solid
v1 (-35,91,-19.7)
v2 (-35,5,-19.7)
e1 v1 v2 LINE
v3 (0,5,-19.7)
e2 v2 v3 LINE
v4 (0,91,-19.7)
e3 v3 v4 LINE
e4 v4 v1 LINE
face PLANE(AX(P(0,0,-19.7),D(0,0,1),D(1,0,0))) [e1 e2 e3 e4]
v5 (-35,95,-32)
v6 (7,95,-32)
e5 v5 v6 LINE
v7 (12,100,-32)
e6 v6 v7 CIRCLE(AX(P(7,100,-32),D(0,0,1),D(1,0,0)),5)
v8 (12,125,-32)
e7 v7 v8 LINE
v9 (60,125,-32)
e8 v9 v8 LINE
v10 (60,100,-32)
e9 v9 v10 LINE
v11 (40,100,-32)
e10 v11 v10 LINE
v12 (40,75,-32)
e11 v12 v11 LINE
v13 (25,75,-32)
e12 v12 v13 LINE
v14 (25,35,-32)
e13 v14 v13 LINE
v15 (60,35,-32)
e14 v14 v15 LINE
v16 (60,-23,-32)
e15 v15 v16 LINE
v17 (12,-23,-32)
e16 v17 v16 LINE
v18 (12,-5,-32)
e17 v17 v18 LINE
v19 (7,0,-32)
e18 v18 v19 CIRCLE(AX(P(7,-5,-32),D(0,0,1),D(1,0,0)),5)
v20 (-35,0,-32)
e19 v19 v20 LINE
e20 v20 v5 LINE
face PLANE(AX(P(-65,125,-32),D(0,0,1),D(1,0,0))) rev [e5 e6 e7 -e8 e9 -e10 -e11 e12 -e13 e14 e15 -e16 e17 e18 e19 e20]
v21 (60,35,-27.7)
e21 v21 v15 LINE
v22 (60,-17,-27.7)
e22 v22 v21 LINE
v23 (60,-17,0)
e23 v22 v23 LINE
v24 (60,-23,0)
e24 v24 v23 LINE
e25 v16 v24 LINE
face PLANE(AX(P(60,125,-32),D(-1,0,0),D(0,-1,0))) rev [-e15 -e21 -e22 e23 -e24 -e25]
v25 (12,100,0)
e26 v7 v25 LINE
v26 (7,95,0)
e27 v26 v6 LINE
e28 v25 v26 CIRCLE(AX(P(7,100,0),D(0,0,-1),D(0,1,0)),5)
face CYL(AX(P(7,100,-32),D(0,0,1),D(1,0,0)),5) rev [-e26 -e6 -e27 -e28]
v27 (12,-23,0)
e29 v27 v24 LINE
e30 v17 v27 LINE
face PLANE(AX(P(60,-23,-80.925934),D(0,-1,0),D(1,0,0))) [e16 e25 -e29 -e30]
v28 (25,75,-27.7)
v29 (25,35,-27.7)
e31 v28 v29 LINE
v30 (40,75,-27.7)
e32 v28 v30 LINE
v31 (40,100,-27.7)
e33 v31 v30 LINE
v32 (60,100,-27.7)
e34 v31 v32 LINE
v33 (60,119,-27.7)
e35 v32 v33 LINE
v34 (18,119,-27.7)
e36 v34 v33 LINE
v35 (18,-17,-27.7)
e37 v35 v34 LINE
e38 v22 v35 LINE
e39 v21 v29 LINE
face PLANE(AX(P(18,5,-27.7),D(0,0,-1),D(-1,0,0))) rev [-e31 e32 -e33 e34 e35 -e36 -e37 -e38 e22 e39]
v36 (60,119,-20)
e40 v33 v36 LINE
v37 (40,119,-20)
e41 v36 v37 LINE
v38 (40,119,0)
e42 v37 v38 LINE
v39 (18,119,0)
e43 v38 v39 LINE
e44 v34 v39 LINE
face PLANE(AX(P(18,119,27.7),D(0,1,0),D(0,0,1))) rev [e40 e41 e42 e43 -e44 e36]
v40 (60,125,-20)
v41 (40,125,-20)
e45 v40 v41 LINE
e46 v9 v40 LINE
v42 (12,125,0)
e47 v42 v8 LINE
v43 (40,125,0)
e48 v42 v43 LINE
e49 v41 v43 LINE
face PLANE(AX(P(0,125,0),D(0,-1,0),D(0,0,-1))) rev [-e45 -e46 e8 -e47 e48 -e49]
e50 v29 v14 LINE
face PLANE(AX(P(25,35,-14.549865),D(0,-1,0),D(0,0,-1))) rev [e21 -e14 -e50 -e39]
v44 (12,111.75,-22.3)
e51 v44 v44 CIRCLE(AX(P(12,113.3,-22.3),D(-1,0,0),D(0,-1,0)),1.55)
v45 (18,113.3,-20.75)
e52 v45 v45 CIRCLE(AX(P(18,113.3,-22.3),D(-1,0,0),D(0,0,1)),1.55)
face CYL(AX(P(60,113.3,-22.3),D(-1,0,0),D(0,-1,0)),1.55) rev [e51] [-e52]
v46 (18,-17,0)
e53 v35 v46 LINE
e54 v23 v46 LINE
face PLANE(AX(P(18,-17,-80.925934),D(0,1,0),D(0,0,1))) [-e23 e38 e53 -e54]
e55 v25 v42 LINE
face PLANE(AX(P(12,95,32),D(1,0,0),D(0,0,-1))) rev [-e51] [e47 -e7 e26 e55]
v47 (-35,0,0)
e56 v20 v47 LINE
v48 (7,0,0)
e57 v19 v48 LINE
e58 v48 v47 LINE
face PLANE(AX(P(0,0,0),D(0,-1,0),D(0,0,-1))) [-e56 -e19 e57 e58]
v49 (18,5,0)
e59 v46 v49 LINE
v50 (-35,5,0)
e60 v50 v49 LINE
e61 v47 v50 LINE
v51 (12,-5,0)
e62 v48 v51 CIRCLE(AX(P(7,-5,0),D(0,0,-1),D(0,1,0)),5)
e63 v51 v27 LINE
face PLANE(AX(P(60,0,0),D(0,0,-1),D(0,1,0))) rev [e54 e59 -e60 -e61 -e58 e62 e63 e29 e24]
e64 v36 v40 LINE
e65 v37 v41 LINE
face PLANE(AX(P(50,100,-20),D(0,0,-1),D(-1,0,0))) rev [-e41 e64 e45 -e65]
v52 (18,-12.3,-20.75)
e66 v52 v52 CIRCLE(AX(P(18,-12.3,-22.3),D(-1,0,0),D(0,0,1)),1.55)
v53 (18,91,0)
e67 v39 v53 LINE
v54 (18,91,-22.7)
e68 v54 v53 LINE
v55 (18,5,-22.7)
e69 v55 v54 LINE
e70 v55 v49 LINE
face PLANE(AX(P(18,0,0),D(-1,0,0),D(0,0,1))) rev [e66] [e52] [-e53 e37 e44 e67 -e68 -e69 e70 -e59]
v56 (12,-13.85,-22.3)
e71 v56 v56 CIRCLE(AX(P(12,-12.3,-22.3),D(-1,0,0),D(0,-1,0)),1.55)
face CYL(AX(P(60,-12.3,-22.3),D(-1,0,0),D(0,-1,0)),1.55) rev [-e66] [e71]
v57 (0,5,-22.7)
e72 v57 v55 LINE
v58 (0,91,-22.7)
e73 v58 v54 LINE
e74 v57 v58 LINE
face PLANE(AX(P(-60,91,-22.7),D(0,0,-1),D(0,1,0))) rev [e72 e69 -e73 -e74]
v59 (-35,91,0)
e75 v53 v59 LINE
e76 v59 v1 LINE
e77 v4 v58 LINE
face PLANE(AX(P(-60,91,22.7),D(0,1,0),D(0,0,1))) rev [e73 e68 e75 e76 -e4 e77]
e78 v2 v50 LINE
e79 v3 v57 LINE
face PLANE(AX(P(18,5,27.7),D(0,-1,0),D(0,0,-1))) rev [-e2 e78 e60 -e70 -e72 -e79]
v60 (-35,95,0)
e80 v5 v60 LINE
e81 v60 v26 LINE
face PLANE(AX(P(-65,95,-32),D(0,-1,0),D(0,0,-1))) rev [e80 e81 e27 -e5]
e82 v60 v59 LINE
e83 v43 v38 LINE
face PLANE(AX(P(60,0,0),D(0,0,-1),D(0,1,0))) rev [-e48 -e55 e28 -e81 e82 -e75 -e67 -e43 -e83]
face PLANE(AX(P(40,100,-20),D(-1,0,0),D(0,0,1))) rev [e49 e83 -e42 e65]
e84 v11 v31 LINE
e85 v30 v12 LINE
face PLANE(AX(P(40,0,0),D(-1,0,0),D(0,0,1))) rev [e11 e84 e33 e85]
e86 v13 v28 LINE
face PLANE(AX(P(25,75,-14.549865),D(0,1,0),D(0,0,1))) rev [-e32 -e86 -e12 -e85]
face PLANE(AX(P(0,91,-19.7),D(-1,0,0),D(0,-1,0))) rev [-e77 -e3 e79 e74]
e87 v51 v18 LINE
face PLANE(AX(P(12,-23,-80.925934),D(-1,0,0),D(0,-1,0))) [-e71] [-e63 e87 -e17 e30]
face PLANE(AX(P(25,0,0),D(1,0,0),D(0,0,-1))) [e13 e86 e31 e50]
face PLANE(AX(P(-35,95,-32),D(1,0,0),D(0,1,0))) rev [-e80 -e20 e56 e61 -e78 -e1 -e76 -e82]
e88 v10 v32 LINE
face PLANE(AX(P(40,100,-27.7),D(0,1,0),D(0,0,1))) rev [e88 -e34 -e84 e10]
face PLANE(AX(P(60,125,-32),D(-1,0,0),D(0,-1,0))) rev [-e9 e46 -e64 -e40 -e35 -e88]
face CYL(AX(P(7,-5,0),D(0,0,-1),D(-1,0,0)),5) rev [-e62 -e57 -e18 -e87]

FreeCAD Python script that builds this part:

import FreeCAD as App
import Part
import Sketcher
Q = App.Units.Quantity


def edges_at(feature, points):
    """Names of the edges that pass closest to the given points."""
    edges = feature.Shape.Edges
    near = lambda p: min(range(len(edges)), key=lambda i: edges[i].distToShape(Part.Vertex(*p))[0])
    return sorted({f"Edge{near(p) + 1}" for p in points})


def add_polygon(sketch, points):
    """Adds a closed chain of lines whose ends are joined by coincident constraints."""
    first, n = sketch.GeometryCount, len(points)
    for a, b in zip(points, points[1:] + points[:1]):
        sketch.addGeometry(Part.LineSegment(App.Vector(*a, 0), App.Vector(*b, 0)), False)
    for i in range(n):
        sketch.addConstraint(Sketcher.Constraint("Coincident", first + i, 2, first + (i + 1) % n, 1))

doc = App.newDocument("Part")
body = doc.addObject("PartDesign::Body", "Body")

sketch1 = body.newObject("Sketcher::SketchObject", "Sketch")
sketch1.AttachmentSupport = (doc.getObject("XZ_Plane"), [""])
sketch1.MapMode = "FlatFace"
add_polygon(sketch1, [(-65, -32), (-65, 32), (65, 32), (65, -32)])
sketch1.addConstraint([
    Sketcher.Constraint("Vertical", 0),
    Sketcher.Constraint("Horizontal", 1),
    Sketcher.Constraint("Vertical", 2),
    Sketcher.Constraint("Horizontal", 3),
    Sketcher.Constraint("Symmetric", 0, 2, 2, 2, -1, 1),
    Sketcher.Constraint("DistanceX", 1, 1, 1, 2, Q("130 mm")),
    Sketcher.Constraint("DistanceY", 0, 1, 0, 2, Q("64 mm")),
])
pad1 = body.newObject("PartDesign::Pad", "Pad")
pad1.Profile = sketch1
pad1.Length = 125
pad1.Reversed = True

sketch2 = body.newObject("Sketcher::SketchObject", "Sketch001")
sketch2.AttachmentSupport = (doc.getObject("YZ_Plane"), [""])
sketch2.MapMode = "FlatFace"
sketch2.AttachmentOffset = App.Placement(App.Vector(0, 0, 65), App.Rotation())
add_polygon(sketch2, [(119, 28), (5, 28), (5, -28), (119, -28)])
sketch2.addConstraint([
    Sketcher.Constraint("Horizontal", 0),
    Sketcher.Constraint("Vertical", 1),
    Sketcher.Constraint("Horizontal", 2),
    Sketcher.Constraint("Vertical", 3),
    Sketcher.Constraint("DistanceX", 0, 2, 0, 1, Q("114 mm")),
    Sketcher.Constraint("DistanceY", 1, 2, 1, 1, Q("55.4 mm")),
    Sketcher.Constraint("DistanceX", -1, 1, 0, 2, Q("5 mm")),
    Sketcher.Constraint("DistanceY", -1, 1, 0, 2, Q("27.7 mm")),
])
pocket1 = body.newObject("PartDesign::Pocket", "Pocket")
pocket1.Profile = sketch2
pocket1.Length = 47

sketch3 = body.newObject("Sketcher::SketchObject", "Sketch002")
sketch3.AttachmentSupport = (doc.getObject("YZ_Plane"), [""])
sketch3.MapMode = "FlatFace"
sketch3.AttachmentOffset = App.Placement(App.Vector(0, 0, 18), App.Rotation())
add_polygon(sketch3, [(91, 23), (5, 23), (5, -23), (91, -23)])
sketch3.addConstraint([
    Sketcher.Constraint("Horizontal", 0),
    Sketcher.Constraint("Vertical", 1),
    Sketcher.Constraint("Horizontal", 2),
    Sketcher.Constraint("Vertical", 3),
    Sketcher.Constraint("DistanceX", 0, 2, 0, 1, Q("86 mm")),
    Sketcher.Constraint("DistanceY", 1, 2, 1, 1, Q("45.4 mm")),
    Sketcher.Constraint("DistanceX", -1, 1, 0, 2, Q("5 mm")),
    Sketcher.Constraint("DistanceY", -1, 1, 0, 2, Q("22.7 mm")),
])
pocket2 = body.newObject("PartDesign::Pocket", "Pocket001")
pocket2.Profile = sketch3
pocket2.Length = 78

sketch4 = body.newObject("Sketcher::SketchObject", "Sketch003")
sketch4.AttachmentSupport = (doc.getObject("YZ_Plane"), [""])
sketch4.MapMode = "FlatFace"
sketch4.AttachmentOffset = App.Placement(App.Vector(0, 0, 65), App.Rotation())
add_polygon(sketch4, [(75, -15), (35, -15), (35, -39), (75, -39)])
sketch4.addConstraint([
    Sketcher.Constraint("Horizontal", 0),
    Sketcher.Constraint("Vertical", 1),
    Sketcher.Constraint("Horizontal", 2),
    Sketcher.Constraint("Vertical", 3),
    Sketcher.Constraint("DistanceX", 0, 2, 0, 1, Q("40 mm")),
    Sketcher.Constraint("DistanceX", -1, 1, 0, 2, Q("35 mm")),
    Sketcher.Constraint("DistanceY", 1, 2, 1, 1, Q("24.038908 mm")),
    Sketcher.Constraint("DistanceY", 0, 2, -1, 1, Q("14.549865 mm")),
])
pocket3 = body.newObject("PartDesign::Pocket", "Pocket002")
pocket3.Profile = sketch4
pocket3.Length = 40

sketch5 = body.newObject("Sketcher::SketchObject", "Sketch004")
sketch5.AttachmentSupport = (doc.getObject("YZ_Plane"), [""])
sketch5.MapMode = "FlatFace"
sketch5.AttachmentOffset = App.Placement(App.Vector(0, 0, 65), App.Rotation())
add_polygon(sketch5, [(100, -27.7), (75, -27.7), (75, -32), (100, -32)])
sketch5.addConstraint([
    Sketcher.Constraint("Horizontal", 0),
    Sketcher.Constraint("Vertical", 1),
    Sketcher.Constraint("Horizontal", 2),
    Sketcher.Constraint("Vertical", 3),
    Sketcher.Constraint("DistanceX", 0, 2, 0, 1, Q("25 mm")),
    Sketcher.Constraint("DistanceY", 1, 2, 1, 1, Q("4.3 mm")),
    Sketcher.Constraint("DistanceX", -1, 1, 0, 2, Q("75 mm")),
    Sketcher.Constraint("DistanceY", 1, 2, -1, 1, Q("32 mm")),
])
pocket4 = body.newObject("PartDesign::Pocket", "Pocket003")
pocket4.Profile = sketch5
pocket4.Length = 25

sketch6 = body.newObject("Sketcher::SketchObject", "Sketch005")
sketch6.AttachmentSupport = (doc.getObject("XZ_Plane"), [""])
sketch6.MapMode = "FlatFace"
sketch6.AttachmentOffset = App.Placement(App.Vector(0, 0, -125), App.Rotation())
add_polygon(sketch6, [(40, -20), (40, 20), (50, 20), (50, -20)])
sketch6.addConstraint([
    Sketcher.Constraint("Vertical", 0),
    Sketcher.Constraint("Horizontal", 1),
    Sketcher.Constraint("Vertical", 2),
    Sketcher.Constraint("Horizontal", 3),
    Sketcher.Constraint("DistanceX", 1, 1, 1, 2, Q("10 mm")),
    Sketcher.Constraint("DistanceY", 0, 1, 0, 2, Q("40 mm")),
    Sketcher.Constraint("DistanceX", -1, 1, 0, 2, Q("40 mm")),
    Sketcher.Constraint("DistanceY", -1, 1, 0, 2, Q("20 mm")),
])
pocket5 = body.newObject("PartDesign::Pocket", "Pocket004")
pocket5.Profile = sketch6
pocket5.Length = 25
pocket5.Reversed = True

sketch7 = body.newObject("Sketcher::SketchObject", "Sketch006")
sketch7.AttachmentSupport = (doc.getObject("XY_Plane"), [""])
sketch7.MapMode = "FlatFace"
sketch7.AttachmentOffset = App.Placement(App.Vector(0, 0, 32), App.Rotation())
add_polygon(sketch7, [(60, 125), (60, 0), (65, 0), (65, 125)])
sketch7.addConstraint([
    Sketcher.Constraint("Vertical", 0),
    Sketcher.Constraint("Horizontal", 1),
    Sketcher.Constraint("Vertical", 2),
    Sketcher.Constraint("Horizontal", 3),
    Sketcher.Constraint("PointOnObject", 0, 2, -1),
    Sketcher.Constraint("DistanceX", 1, 1, 1, 2, Q("5 mm")),
    Sketcher.Constraint("DistanceY", 0, 2, 0, 1, Q("125 mm")),
    Sketcher.Constraint("DistanceX", -1, 1, 0, 2, Q("60 mm")),
])
pocket6 = body.newObject("PartDesign::Pocket", "Pocket005")
pocket6.Profile = sketch7
pocket6.Type = "ThroughAll"

sketch8 = body.newObject("Sketcher::SketchObject", "Sketch007")
sketch8.AttachmentSupport = (doc.getObject("XY_Plane"), [""])
sketch8.MapMode = "FlatFace"
sketch8.AttachmentOffset = App.Placement(App.Vector(0, 0, 32), App.Rotation())
add_polygon(sketch8, [(-65, 125), (-65, 95), (-33, 95), (-33, 125)])
sketch8.addConstraint([
    Sketcher.Constraint("Vertical", 0),
    Sketcher.Constraint("Horizontal", 1),
    Sketcher.Constraint("Vertical", 2),
    Sketcher.Constraint("Horizontal", 3),
    Sketcher.Constraint("DistanceX", 1, 1, 1, 2, Q("32 mm")),
    Sketcher.Constraint("DistanceY", 0, 2, 0, 1, Q("30 mm")),
    Sketcher.Constraint("DistanceX", 0, 2, -1, 1, Q("65 mm")),
    Sketcher.Constraint("DistanceY", -1, 1, 0, 2, Q("95 mm")),
])
pocket7 = body.newObject("PartDesign::Pocket", "Pocket006")
pocket7.Profile = sketch8
pocket7.Type = "ThroughAll"

sketch9 = body.newObject("Sketcher::SketchObject", "Sketch008")
sketch9.AttachmentSupport = (doc.getObject("XZ_Plane"), [""])
sketch9.MapMode = "FlatFace"
sketch9.AttachmentOffset = App.Placement(App.Vector(0, 0, -125), App.Rotation())
add_polygon(sketch9, [(-33, -32), (-33, 32), (12, 32), (12, -32)])
sketch9.addConstraint([
    Sketcher.Constraint("Vertical", 0),
    Sketcher.Constraint("Horizontal", 1),
    Sketcher.Constraint("Vertical", 2),
    Sketcher.Constraint("Horizontal", 3),
    Sketcher.Constraint("DistanceX", 1, 1, 1, 2, Q("45 mm")),
    Sketcher.Constraint("DistanceY", 0, 1, 0, 2, Q("64 mm")),
    Sketcher.Constraint("DistanceX", 0, 2, -1, 1, Q("33 mm")),
    Sketcher.Constraint("DistanceY", -1, 1, 0, 2, Q("32 mm")),
])
pocket8 = body.newObject("PartDesign::Pocket", "Pocket007")
pocket8.Profile = sketch9
pocket8.Length = 30
pocket8.Reversed = True

sketch10 = body.newObject("Sketcher::SketchObject", "Sketch009")
sketch10.AttachmentSupport = (doc.getObject("YZ_Plane"), [""])
sketch10.MapMode = "FlatFace"
sketch10.AttachmentOffset = App.Placement(App.Vector(0, 0, -65), App.Rotation())
add_polygon(sketch10, [(157, 0), (0, 0), (0, 32), (157, 32)])
sketch10.addConstraint([
    Sketcher.Constraint("Horizontal", 0),
    Sketcher.Constraint("Vertical", 1),
    Sketcher.Constraint("Horizontal", 2),
    Sketcher.Constraint("Vertical", 3),
    Sketcher.Constraint("Coincident", 0, 2, -1, 1),
    Sketcher.Constraint("DistanceY", 1, 1, 1, 2, Q("32 mm")),
    Sketcher.Constraint("DistanceX", 0, 2, 0, 1, Q("157.482614 mm")),
])
pocket9 = body.newObject("PartDesign::Pocket", "Pocket008")
pocket9.Profile = sketch10
pocket9.Type = "ThroughAll"
pocket9.Reversed = True

sketch11 = body.newObject("Sketcher::SketchObject", "Sketch010")
sketch11.AttachmentSupport = (doc.getObject("XY_Plane"), [""])
sketch11.MapMode = "FlatFace"
add_polygon(sketch11, [(-65, 95), (-65, 0), (-35, 0), (-35, 95)])
sketch11.addConstraint([
    Sketcher.Constraint("Vertical", 0),
    Sketcher.Constraint("Horizontal", 1),
    Sketcher.Constraint("Vertical", 2),
    Sketcher.Constraint("Horizontal", 3),
    Sketcher.Constraint("PointOnObject", 0, 2, -1),
    Sketcher.Constraint("DistanceX", 1, 1, 1, 2, Q("30 mm")),
    Sketcher.Constraint("DistanceY", 0, 2, 0, 1, Q("95 mm")),
    Sketcher.Constraint("DistanceX", 0, 2, -1, 1, Q("65 mm")),
])
pocket10 = body.newObject("PartDesign::Pocket", "Pocket009")
pocket10.Profile = sketch11
pocket10.Type = "ThroughAll"

sketch12 = body.newObject("Sketcher::SketchObject", "Sketch011")
sketch12.AttachmentSupport = (doc.getObject("XY_Plane"), [""])
sketch12.MapMode = "FlatFace"
sketch12.AttachmentOffset = App.Placement(App.Vector(0, 0, -22.7), App.Rotation())
add_polygon(sketch12, [(-35, 91), (-35, 5), (0, 5), (0, 91)])
sketch12.addConstraint([
    Sketcher.Constraint("Vertical", 0),
    Sketcher.Constraint("Horizontal", 1),
    Sketcher.Constraint("Vertical", 2),
    Sketcher.Constraint("Horizontal", 3),
    Sketcher.Constraint("PointOnObject", 1, 2, -2),
    Sketcher.Constraint("DistanceX", 1, 1, 1, 2, Q("35 mm")),
    Sketcher.Constraint("DistanceY", 0, 2, 0, 1, Q("86 mm")),
    Sketcher.Constraint("DistanceY", -1, 1, 0, 2, Q("5 mm")),
])
pad2 = body.newObject("PartDesign::Pad", "Pad001")
pad2.Profile = sketch12
pad2.Length = 3

sketch13 = body.newObject("Sketcher::SketchObject", "Sketch012")
sketch13.AttachmentSupport = (doc.getObject("YZ_Plane"), [""])
sketch13.MapMode = "FlatFace"
sketch13.AttachmentOffset = App.Placement(App.Vector(0, 0, 40), App.Rotation())
add_polygon(sketch13, [(125, 0), (119, 0), (119, -20), (125, -20)])
sketch13.addConstraint([
    Sketcher.Constraint("Horizontal", 0),
    Sketcher.Constraint("Vertical", 1),
    Sketcher.Constraint("Horizontal", 2),
    Sketcher.Constraint("Vertical", 3),
    Sketcher.Constraint("PointOnObject", 0, 2, -1),
    Sketcher.Constraint("DistanceX", 0, 2, 0, 1, Q("6 mm")),
    Sketcher.Constraint("DistanceY", 1, 2, 1, 1, Q("20 mm")),
    Sketcher.Constraint("DistanceX", -1, 1, 0, 2, Q("119 mm")),
])
pocket11 = body.newObject("PartDesign::Pocket", "Pocket010")
pocket11.Profile = sketch13
pocket11.Type = "ThroughAll"
pocket11.Reversed = True
doc.recompute()

fillet = body.newObject("PartDesign::Fillet", "Fillet")
fillet.Base = (pocket11, edges_at(pocket11, [(12, 95, -16)]))
fillet.Radius = 5

sketch14 = body.newObject("Sketcher::SketchObject", "Sketch013")
sketch14.AttachmentSupport = (doc.getObject("XZ_Plane"), [""])
sketch14.MapMode = "FlatFace"
sketch14.AttachmentOffset = App.Placement(App.Vector(0, 0, -5), App.Rotation())
add_polygon(sketch14, [(18, -28), (18, 0), (60, 0), (60, -28)])
sketch14.addConstraint([
    Sketcher.Constraint("Vertical", 0),
    Sketcher.Constraint("Horizontal", 1),
    Sketcher.Constraint("Vertical", 2),
    Sketcher.Constraint("Horizontal", 3),
    Sketcher.Constraint("PointOnObject", 0, 2, -1),
    Sketcher.Constraint("DistanceX", 1, 1, 1, 2, Q("42 mm")),
    Sketcher.Constraint("DistanceY", 0, 1, 0, 2, Q("27.7 mm")),
    Sketcher.Constraint("DistanceX", -1, 1, 0, 2, Q("18 mm")),
])
pocket12 = body.newObject("PartDesign::Pocket", "Pocket011")
pocket12.Profile = sketch14
pocket12.Type = "ThroughAll"
pocket12.Reversed = True

sketch15 = body.newObject("Sketcher::SketchObject", "Sketch014")
sketch15.AttachmentSupport = (doc.getObject("XY_Plane"), [""])
sketch15.MapMode = "FlatFace"
add_polygon(sketch15, [(18, 0), (12, 0), (12, -23), (60, -23), (60, -17), (18, -17)])
sketch15.addConstraint([
    Sketcher.Constraint("Horizontal", 0),
    Sketcher.Constraint("Vertical", 1),
    Sketcher.Constraint("Horizontal", 2),
    Sketcher.Constraint("Vertical", 3),
    Sketcher.Constraint("Horizontal", 4),
    Sketcher.Constraint("Vertical", 5),
    Sketcher.Constraint("PointOnObject", 0, 2, -1),
    Sketcher.Constraint("Equal", 0, 3),
    Sketcher.Constraint("DistanceX", 0, 2, 0, 1, Q("6 mm")),
    Sketcher.Constraint("DistanceX", 2, 1, 2, 2, Q("48 mm")),
    Sketcher.Constraint("DistanceY", 1, 2, 1, 1, Q("23 mm")),
    Sketcher.Constraint("DistanceX", -1, 1, 0, 2, Q("12 mm")),
])
pad3 = body.newObject("PartDesign::Pad", "Pad002")
pad3.Profile = sketch15
pad3.Length = 27.7
pad3.Reversed = True

sketch16 = body.newObject("Sketcher::SketchObject", "Sketch015")
sketch16.AttachmentSupport = (doc.getObject("XZ_Plane"), [""])
sketch16.MapMode = "FlatFace"
add_polygon(sketch16, [(12, -27.7), (12, -32), (60, -32), (60, -27.7)])
sketch16.addConstraint([
    Sketcher.Constraint("Vertical", 0),
    Sketcher.Constraint("Horizontal", 1),
    Sketcher.Constraint("Vertical", 2),
    Sketcher.Constraint("Horizontal", 3),
    Sketcher.Constraint("DistanceX", 1, 1, 1, 2, Q("48 mm")),
    Sketcher.Constraint("DistanceY", 0, 2, 0, 1, Q("4.3 mm")),
    Sketcher.Constraint("DistanceX", -1, 1, 0, 2, Q("12 mm")),
    Sketcher.Constraint("DistanceY", 0, 2, -1, 1, Q("32 mm")),
])
pad4 = body.newObject("PartDesign::Pad", "Pad003")
pad4.Profile = sketch16
pad4.Length = 23

sketch17 = body.newObject("Sketcher::SketchObject", "Sketch016")
sketch17.AttachmentSupport = (doc.getObject("YZ_Plane"), [""])
sketch17.MapMode = "FlatFace"
sketch17.AttachmentOffset = App.Placement(App.Vector(0, 0, 12), App.Rotation())
sketch17.addGeometry([
    Part.Circle(App.Vector(113.3, -22.3, 0), App.Vector(0, 0, 1), 1.6),
    Part.Circle(App.Vector(-12.3, -22.3, 0), App.Vector(0, 0, 1), 1.6),
], False)
sketch17.addConstraint([
    Sketcher.Constraint("Equal", 0, 1),
    Sketcher.Constraint("Horizontal", 0, 3, 1, 3),
    Sketcher.Constraint("Diameter", 0, Q("3.1 mm")),
    Sketcher.Constraint("DistanceX", -1, 1, 0, 3, Q("113.3 mm")),
    Sketcher.Constraint("DistanceY", 0, 3, -1, 1, Q("22.3 mm")),
    Sketcher.Constraint("DistanceX", 1, 3, -1, 1, Q("12.3 mm")),
])
pocket13 = body.newObject("PartDesign::Pocket", "Pocket012")
pocket13.Profile = sketch17
pocket13.Type = "ThroughAll"
pocket13.Reversed = True
doc.recompute()

fillet2 = body.newObject("PartDesign::Fillet", "Fillet001")
fillet2.Base = (pocket13, edges_at(pocket13, [(12, 0, -16)]))
fillet2.Radius = 5

doc.recompute()
